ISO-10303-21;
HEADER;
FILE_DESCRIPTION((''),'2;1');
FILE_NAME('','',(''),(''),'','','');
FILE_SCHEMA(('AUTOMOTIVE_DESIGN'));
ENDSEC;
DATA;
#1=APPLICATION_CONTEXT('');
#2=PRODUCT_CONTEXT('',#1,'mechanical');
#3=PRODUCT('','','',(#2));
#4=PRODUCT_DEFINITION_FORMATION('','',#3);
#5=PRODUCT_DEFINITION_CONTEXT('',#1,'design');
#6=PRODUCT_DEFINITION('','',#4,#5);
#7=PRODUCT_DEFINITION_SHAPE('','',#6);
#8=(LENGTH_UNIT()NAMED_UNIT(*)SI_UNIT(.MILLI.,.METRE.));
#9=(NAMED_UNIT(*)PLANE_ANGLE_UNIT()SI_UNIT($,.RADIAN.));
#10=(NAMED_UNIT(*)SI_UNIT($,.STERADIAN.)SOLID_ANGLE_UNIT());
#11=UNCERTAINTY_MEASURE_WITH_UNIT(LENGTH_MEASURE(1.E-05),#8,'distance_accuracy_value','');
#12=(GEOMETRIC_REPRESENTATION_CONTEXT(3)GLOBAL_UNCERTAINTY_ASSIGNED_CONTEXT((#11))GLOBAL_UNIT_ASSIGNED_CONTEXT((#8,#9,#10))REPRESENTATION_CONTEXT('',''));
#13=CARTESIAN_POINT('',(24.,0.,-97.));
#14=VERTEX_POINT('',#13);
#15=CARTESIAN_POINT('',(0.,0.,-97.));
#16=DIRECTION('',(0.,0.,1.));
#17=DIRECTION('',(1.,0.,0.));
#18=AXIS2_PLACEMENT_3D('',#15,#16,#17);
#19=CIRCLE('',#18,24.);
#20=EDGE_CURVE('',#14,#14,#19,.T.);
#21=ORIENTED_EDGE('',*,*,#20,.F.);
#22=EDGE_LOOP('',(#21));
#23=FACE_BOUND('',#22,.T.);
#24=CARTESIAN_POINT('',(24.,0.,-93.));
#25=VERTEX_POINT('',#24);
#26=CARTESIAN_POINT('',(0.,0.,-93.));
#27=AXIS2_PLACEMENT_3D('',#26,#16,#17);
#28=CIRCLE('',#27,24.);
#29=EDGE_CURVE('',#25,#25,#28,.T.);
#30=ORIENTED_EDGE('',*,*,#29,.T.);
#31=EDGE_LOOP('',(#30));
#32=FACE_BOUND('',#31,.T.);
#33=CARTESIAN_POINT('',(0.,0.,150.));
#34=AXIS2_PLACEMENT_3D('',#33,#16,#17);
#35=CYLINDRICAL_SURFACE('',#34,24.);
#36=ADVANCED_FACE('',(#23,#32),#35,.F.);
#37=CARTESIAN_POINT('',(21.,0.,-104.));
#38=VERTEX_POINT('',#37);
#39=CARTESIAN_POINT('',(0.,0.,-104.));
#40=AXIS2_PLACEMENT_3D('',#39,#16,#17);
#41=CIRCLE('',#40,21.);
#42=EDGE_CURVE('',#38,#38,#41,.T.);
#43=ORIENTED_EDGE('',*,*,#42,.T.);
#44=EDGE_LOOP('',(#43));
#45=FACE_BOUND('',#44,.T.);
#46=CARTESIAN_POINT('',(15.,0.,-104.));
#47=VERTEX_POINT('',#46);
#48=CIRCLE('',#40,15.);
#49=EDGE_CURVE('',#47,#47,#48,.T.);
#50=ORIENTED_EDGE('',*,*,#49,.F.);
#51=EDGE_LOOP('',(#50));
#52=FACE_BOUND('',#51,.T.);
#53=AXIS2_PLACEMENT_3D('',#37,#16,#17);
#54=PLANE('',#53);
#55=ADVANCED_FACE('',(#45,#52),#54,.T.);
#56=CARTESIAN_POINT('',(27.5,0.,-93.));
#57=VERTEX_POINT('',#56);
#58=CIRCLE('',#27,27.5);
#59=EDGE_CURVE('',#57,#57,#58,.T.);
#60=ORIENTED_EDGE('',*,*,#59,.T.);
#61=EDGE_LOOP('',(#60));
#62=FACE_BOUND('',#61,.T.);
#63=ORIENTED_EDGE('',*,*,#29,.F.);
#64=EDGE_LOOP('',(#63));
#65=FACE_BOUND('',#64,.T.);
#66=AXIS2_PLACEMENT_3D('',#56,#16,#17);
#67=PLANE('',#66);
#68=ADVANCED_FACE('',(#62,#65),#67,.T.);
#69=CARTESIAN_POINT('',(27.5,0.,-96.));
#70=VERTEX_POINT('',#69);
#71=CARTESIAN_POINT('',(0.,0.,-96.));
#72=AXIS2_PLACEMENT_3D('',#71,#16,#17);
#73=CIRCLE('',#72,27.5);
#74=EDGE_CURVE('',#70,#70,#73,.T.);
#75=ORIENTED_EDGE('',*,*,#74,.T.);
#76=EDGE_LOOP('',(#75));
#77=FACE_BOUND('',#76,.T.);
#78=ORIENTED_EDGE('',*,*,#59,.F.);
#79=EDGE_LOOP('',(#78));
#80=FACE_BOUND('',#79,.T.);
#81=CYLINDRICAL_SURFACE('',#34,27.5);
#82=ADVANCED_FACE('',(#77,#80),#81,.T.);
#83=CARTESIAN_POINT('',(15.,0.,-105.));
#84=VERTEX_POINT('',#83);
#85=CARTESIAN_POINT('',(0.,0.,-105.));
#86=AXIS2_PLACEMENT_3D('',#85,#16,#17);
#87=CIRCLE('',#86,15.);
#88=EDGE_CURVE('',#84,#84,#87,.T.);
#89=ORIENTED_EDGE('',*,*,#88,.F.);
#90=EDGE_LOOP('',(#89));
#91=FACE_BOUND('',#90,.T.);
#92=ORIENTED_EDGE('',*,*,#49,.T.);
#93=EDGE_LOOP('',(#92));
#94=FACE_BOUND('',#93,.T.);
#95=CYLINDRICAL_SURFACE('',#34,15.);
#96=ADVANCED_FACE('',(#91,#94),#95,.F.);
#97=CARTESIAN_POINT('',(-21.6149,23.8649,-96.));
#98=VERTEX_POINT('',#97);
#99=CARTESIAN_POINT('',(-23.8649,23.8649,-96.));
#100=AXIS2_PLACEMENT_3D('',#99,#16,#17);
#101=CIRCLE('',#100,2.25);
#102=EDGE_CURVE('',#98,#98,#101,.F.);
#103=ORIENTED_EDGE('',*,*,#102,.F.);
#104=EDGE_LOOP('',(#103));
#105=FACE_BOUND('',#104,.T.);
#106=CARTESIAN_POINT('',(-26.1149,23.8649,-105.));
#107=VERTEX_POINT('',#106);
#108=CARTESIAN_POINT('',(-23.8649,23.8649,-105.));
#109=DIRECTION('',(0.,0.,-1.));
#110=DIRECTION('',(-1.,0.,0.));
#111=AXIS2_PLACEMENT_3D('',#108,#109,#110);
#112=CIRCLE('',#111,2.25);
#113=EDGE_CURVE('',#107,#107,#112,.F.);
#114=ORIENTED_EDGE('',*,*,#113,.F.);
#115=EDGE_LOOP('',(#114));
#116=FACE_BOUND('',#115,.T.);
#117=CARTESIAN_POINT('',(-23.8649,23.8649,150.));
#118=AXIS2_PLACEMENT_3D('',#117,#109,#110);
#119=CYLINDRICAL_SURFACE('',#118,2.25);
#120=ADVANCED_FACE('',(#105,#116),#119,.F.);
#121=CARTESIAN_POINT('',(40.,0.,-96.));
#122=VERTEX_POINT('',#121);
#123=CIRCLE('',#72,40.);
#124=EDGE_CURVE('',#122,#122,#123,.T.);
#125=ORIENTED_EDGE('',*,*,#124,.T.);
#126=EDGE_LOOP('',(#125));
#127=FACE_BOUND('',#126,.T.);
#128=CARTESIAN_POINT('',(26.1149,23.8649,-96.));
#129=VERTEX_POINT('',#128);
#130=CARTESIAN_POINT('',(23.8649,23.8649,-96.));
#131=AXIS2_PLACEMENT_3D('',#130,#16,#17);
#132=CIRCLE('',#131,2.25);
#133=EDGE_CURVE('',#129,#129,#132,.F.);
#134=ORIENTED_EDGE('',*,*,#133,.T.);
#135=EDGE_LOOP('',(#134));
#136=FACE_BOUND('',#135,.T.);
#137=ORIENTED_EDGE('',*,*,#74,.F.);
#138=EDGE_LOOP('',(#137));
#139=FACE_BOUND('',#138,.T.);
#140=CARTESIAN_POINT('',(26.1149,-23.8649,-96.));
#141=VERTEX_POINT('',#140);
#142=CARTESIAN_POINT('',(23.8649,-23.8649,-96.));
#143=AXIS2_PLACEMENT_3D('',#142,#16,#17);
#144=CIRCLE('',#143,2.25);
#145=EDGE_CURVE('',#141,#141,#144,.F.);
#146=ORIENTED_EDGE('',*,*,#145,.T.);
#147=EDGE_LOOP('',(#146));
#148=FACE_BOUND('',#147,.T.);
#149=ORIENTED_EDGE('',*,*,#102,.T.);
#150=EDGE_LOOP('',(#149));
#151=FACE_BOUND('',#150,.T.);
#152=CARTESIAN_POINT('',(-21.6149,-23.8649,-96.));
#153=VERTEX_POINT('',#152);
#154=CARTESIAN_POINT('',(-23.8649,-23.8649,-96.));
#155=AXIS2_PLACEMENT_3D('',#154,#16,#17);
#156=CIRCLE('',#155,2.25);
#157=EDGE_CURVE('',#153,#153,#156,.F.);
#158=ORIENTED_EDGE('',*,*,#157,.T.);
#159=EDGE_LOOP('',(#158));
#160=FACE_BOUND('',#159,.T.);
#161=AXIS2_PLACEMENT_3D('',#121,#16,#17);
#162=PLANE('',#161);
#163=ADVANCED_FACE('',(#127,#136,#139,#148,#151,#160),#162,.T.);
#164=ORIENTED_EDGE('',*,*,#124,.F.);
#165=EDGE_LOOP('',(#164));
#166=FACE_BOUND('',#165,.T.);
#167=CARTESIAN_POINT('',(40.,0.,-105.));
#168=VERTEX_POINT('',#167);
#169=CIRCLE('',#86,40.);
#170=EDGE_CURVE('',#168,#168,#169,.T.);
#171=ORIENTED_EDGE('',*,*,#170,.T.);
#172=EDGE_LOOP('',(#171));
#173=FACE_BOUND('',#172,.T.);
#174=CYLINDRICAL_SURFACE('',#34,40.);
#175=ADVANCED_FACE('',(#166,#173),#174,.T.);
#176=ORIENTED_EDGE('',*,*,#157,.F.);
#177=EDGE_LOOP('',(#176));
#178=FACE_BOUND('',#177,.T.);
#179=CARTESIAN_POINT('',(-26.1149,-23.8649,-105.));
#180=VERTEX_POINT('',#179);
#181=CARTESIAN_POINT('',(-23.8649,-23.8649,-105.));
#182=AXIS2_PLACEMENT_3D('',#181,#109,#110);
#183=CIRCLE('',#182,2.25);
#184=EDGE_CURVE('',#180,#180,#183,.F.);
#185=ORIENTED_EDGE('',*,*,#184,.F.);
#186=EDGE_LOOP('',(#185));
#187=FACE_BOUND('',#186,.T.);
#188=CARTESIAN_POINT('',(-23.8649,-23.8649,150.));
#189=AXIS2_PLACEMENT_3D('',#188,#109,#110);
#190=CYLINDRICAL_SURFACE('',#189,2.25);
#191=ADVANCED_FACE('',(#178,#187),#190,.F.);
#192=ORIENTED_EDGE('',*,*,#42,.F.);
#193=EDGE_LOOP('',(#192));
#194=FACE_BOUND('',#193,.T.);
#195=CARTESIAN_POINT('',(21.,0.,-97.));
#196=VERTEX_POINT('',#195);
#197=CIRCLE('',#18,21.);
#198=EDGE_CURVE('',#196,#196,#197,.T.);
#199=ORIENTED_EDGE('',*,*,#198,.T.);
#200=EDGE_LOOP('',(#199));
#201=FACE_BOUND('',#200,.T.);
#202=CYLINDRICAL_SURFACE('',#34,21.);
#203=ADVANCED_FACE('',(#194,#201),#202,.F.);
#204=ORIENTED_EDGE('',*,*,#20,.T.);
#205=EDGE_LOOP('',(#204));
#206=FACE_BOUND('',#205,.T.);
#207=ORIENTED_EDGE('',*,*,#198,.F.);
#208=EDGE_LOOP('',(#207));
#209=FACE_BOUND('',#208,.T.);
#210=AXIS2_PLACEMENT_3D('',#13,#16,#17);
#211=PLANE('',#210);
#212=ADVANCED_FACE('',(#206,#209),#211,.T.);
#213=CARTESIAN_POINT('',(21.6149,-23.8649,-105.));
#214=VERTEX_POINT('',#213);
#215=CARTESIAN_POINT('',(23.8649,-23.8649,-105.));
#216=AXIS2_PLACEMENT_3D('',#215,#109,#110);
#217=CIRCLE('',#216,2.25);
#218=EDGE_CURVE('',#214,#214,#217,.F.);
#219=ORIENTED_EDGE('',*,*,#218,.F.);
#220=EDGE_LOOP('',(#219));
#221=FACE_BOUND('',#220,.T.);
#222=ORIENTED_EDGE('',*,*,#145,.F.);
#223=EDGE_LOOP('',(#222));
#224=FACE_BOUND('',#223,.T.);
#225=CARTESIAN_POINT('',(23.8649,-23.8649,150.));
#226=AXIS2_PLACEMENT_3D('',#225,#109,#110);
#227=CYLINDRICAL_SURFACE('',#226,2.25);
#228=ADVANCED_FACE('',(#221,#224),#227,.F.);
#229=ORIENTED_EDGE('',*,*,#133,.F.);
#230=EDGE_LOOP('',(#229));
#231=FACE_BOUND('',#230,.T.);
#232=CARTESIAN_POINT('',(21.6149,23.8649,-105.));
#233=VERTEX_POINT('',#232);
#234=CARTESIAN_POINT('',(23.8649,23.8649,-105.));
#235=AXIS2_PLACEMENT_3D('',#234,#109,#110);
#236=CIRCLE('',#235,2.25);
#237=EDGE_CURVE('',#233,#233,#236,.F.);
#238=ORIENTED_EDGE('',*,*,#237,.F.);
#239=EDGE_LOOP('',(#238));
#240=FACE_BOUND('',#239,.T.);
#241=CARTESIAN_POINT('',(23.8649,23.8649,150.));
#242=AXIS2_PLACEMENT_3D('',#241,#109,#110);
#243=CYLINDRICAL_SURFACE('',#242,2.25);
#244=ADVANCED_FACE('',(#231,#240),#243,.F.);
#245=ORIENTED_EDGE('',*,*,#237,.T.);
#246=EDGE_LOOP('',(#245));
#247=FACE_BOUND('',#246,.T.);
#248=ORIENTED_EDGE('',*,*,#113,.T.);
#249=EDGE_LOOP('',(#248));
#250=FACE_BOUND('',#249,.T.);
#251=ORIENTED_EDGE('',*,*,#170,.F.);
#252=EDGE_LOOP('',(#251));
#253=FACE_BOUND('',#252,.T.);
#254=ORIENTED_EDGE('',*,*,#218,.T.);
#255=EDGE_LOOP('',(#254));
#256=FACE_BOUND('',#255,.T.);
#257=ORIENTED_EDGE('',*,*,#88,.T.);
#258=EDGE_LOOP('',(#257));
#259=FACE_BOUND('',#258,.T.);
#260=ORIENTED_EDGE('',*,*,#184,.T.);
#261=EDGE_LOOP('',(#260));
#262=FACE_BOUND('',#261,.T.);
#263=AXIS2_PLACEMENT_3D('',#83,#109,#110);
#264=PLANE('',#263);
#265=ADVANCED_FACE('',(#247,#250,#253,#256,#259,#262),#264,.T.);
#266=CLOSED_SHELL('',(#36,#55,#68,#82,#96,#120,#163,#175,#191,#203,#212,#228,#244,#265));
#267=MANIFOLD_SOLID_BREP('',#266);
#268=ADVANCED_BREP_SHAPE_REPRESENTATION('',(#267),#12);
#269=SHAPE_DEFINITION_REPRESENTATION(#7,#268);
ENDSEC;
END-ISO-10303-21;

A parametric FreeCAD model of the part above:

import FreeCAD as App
import Part
import Sketcher
from FreeCAD import Vector

doc = App.newDocument("Part")
body = doc.addObject("PartDesign::Body", "Body")

# Sketch on XZ plane
sketch1 = body.newObject("Sketcher::SketchObject", "Sketch")
sketch1.AttachmentSupport = (doc.getObject("XZ_Plane"), [""])
sketch1.MapMode = "FlatFace"
sketch1.addGeometry([
    Part.LineSegment(Vector(40, -105, 0), Vector(15, -105, 0)),  # 0
    Part.LineSegment(Vector(15, -105, 0), Vector(15, -104, 0)),  # 1
    Part.LineSegment(Vector(15, -104, 0), Vector(21, -104, 0)),  # 2
    Part.LineSegment(Vector(21, -104, 0), Vector(21, -97, 0)),  # 3
    Part.LineSegment(Vector(21, -97, 0), Vector(24, -97, 0)),  # 4
    Part.LineSegment(Vector(24, -97, 0), Vector(24, -93, 0)),  # 5
    Part.LineSegment(Vector(24, -93, 0), Vector(27.5, -93, 0)),  # 6
    Part.LineSegment(Vector(27.5, -93, 0), Vector(27.5, -96, 0)),  # 7
    Part.LineSegment(Vector(27.5, -96, 0), Vector(40, -96, 0)),  # 8
    Part.LineSegment(Vector(40, -96, 0), Vector(40, -105, 0)),  # 9
], False)
sketch1.addConstraint([
    Sketcher.Constraint("Coincident", 0, 2, 1, 1),
    Sketcher.Constraint("Coincident", 1, 2, 2, 1),
    Sketcher.Constraint("Coincident", 2, 2, 3, 1),
    Sketcher.Constraint("Coincident", 3, 2, 4, 1),
    Sketcher.Constraint("Coincident", 4, 2, 5, 1),
    Sketcher.Constraint("Coincident", 5, 2, 6, 1),
    Sketcher.Constraint("Coincident", 6, 2, 7, 1),
    Sketcher.Constraint("Coincident", 7, 2, 8, 1),
    Sketcher.Constraint("Coincident", 8, 2, 9, 1),
    Sketcher.Constraint("Coincident", 9, 2, 0, 1),
    Sketcher.Constraint("Horizontal", 0),
    Sketcher.Constraint("Vertical", 1),
    Sketcher.Constraint("Horizontal", 2),
    Sketcher.Constraint("Vertical", 3),
    Sketcher.Constraint("Horizontal", 4),
    Sketcher.Constraint("Vertical", 5),
    Sketcher.Constraint("Horizontal", 6),
    Sketcher.Constraint("Vertical", 7),
    Sketcher.Constraint("Horizontal", 8),
    Sketcher.Constraint("Vertical", 9),
    Sketcher.Constraint("Equal", 4, 7),
    Sketcher.Constraint("DistanceX", 0, 2, 0, 1, 25.0),
    Sketcher.Constraint("DistanceX", 2, 1, 2, 2, 6.0),
    Sketcher.Constraint("DistanceX", 4, 1, 4, 2, 3.0),
    Sketcher.Constraint("DistanceY", 1, 1, 1, 2, 1.0),
    Sketcher.Constraint("DistanceY", 3, 1, 3, 2, 7.0),
    Sketcher.Constraint("DistanceY", 5, 1, 5, 2, 4.0),
    Sketcher.Constraint("DistanceX", 6, 1, 6, 2, 3.5),
    Sketcher.Constraint("DistanceX", -1, 1, 0, 2, 15.0),
    Sketcher.Constraint("DistanceY", 0, 2, -1, 1, 105.0),
])
revolution = body.newObject("PartDesign::Revolution", "Revolution")
revolution.Profile = sketch1
revolution.ReferenceAxis = (sketch1, ["V_Axis"])
revolution.Angle = 360

# Sketch on XY plane
sketch2 = body.newObject("Sketcher::SketchObject", "Sketch001")
sketch2.AttachmentSupport = (doc.getObject("XY_Plane"), [""])
sketch2.MapMode = "FlatFace"
sketch2.addGeometry([
    Part.Circle(Vector(23.9, 23.9, 0), Vector(0, 0, 1), 2.2),
    Part.Circle(Vector(-23.9, 23.9, 0), Vector(0, 0, 1), 2.2),
    Part.Circle(Vector(-23.9, -23.9, 0), Vector(0, 0, 1), 2.2),
    Part.Circle(Vector(23.9, -23.9, 0), Vector(0, 0, 1), 2.2),
], False)
sketch2.addConstraint([
    Sketcher.Constraint("Equal", 0, 1),
    Sketcher.Constraint("Equal", 1, 2),
    Sketcher.Constraint("Equal", 2, 3),
    Sketcher.Constraint("Symmetric", 0, 3, 2, 3, -1, 1),
    Sketcher.Constraint("Symmetric", 1, 3, 3, 3, -1, 1),
    Sketcher.Constraint("Symmetric", 0, 3, 1, 3, -2),
    Sketcher.Constraint("Diameter", 0, 4.5),
    Sketcher.Constraint("DistanceX", -1, 1, 0, 3, 23.8649),
    Sketcher.Constraint("DistanceY", -1, 1, 0, 3, 23.8649),
])
pocket1 = body.newObject("PartDesign::Pocket", "Pocket")
pocket1.Profile = sketch2
pocket1.Length = 300
pocket1.Midplane = True

doc.recompute()
